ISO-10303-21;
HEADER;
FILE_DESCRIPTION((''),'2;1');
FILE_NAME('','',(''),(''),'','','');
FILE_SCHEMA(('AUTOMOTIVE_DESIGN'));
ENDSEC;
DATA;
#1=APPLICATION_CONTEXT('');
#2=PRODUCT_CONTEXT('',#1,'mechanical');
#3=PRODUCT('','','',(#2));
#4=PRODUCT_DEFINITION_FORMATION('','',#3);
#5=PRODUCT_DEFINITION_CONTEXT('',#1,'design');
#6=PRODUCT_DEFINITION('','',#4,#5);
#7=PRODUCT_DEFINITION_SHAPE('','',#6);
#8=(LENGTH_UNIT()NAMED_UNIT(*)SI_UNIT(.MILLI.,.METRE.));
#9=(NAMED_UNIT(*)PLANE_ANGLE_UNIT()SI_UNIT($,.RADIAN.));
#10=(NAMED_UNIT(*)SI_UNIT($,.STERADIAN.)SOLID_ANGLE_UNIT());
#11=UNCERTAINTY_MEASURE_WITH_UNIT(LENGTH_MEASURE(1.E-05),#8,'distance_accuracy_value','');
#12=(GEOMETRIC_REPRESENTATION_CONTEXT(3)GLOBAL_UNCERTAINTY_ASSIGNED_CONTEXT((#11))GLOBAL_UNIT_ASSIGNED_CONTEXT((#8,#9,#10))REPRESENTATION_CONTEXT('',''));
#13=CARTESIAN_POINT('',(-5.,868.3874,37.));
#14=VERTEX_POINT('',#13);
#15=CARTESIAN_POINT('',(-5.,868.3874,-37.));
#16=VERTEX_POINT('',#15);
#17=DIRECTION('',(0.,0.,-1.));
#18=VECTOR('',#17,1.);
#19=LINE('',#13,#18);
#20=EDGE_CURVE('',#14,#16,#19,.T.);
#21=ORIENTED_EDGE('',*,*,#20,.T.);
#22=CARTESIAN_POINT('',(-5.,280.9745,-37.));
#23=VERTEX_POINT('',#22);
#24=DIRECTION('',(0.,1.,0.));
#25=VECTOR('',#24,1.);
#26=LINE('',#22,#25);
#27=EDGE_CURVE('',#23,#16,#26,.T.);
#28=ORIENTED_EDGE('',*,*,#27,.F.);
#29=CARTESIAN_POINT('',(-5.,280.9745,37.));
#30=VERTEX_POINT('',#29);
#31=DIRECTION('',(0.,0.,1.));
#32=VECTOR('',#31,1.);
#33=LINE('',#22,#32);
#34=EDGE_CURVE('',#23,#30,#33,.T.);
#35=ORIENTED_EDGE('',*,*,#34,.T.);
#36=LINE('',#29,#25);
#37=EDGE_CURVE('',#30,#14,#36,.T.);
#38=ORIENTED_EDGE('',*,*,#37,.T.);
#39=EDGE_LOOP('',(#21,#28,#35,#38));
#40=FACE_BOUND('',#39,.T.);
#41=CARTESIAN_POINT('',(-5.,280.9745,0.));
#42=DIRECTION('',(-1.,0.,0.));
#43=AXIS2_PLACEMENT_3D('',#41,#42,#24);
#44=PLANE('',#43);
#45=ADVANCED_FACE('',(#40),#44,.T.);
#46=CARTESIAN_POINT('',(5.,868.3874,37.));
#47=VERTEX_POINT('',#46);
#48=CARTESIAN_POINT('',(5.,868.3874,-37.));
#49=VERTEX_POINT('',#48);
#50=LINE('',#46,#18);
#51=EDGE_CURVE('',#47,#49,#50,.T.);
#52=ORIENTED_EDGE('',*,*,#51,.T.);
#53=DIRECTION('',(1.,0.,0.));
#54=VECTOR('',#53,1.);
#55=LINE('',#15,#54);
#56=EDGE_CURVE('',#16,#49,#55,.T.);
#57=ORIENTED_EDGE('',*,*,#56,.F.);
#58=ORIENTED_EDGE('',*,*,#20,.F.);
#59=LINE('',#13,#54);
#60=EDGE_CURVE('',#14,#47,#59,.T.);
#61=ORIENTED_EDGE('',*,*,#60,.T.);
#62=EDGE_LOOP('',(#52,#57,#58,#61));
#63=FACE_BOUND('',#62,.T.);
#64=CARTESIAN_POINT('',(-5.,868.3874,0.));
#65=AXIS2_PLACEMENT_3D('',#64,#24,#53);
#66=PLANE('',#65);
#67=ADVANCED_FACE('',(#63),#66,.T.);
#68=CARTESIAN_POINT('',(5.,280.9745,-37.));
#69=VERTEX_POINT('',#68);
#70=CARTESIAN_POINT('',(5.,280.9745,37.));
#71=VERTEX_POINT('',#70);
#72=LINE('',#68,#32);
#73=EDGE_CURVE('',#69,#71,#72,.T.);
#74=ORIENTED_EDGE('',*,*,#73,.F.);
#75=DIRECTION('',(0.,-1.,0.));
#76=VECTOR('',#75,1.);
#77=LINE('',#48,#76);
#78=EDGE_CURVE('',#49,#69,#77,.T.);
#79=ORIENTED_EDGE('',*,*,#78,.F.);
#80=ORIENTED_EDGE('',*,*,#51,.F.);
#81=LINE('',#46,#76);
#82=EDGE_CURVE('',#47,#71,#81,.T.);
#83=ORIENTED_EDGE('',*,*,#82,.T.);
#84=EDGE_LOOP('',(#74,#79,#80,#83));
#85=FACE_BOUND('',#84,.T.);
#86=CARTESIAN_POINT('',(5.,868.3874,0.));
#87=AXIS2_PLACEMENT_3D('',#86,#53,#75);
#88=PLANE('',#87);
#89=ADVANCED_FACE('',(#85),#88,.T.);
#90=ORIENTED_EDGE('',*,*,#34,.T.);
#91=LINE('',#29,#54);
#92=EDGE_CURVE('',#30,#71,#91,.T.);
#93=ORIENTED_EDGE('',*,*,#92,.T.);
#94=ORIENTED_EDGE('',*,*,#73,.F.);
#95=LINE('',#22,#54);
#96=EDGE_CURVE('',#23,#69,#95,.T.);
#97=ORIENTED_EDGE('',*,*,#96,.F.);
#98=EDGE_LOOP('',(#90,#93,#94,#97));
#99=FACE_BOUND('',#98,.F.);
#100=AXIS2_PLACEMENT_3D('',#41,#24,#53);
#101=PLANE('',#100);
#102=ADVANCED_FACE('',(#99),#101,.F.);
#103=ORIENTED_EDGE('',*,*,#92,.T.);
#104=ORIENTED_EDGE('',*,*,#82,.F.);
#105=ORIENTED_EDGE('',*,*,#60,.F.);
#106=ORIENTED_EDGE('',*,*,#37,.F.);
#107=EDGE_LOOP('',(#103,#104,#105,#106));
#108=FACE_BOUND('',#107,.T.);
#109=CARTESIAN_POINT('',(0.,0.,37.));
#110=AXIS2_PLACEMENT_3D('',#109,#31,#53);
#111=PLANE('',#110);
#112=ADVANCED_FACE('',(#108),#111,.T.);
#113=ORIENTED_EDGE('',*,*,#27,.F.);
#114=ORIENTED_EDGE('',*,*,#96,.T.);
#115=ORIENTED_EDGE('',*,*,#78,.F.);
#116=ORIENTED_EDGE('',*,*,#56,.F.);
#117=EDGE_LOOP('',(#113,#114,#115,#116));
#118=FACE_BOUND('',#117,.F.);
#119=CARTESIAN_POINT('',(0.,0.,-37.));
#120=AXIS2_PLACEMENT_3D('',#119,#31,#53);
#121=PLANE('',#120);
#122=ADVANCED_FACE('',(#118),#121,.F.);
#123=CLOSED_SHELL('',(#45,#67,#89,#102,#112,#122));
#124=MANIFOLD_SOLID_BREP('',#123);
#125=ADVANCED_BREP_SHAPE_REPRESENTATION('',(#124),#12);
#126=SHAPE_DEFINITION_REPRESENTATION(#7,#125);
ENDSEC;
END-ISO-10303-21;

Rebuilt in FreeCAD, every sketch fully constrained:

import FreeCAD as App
import Part
import Sketcher
from FreeCAD import Vector
Q = App.Units.Quantity


def add_polygon(sketch, points):
    """Adds a closed chain of lines whose ends are joined by coincident constraints."""
    first, n = sketch.GeometryCount, len(points)
    for a, b in zip(points, points[1:] + points[:1]):
        sketch.addGeometry(Part.LineSegment(App.Vector(*a, 0), App.Vector(*b, 0)), False)
    for i in range(n):
        sketch.addConstraint(Sketcher.Constraint("Coincident", first + i, 2, first + (i + 1) % n, 1))

doc = App.newDocument("Part")
params = doc.addObject("Spreadsheet::Sheet", "Params")
for row, (alias, value) in enumerate([
    ("pad1_length", "74 mm"),
], start=1):
    params.set(f"A{row}", alias)
    params.set(f"B{row}", "=" + value)
    params.setAlias(f"B{row}", alias)

body = doc.addObject("PartDesign::Body", "Body")

# Sketch on XY plane
sketch1 = body.newObject("Sketcher::SketchObject", "Sketch")
sketch1.AttachmentSupport = (doc.getObject("XY_Plane"), [""])
sketch1.MapMode = "FlatFace"
add_polygon(sketch1, [(-5, 868), (-5, 281), (5, 281), (5, 868)])  # lines 0-3
sketch1.addConstraint([
    Sketcher.Constraint("Vertical", 0),
    Sketcher.Constraint("Horizontal", 1),
    Sketcher.Constraint("Vertical", 2),
    Sketcher.Constraint("Horizontal", 3),
    Sketcher.Constraint("DistanceX", 0, 2, -1, 1, Q("5 mm")),
    Sketcher.Constraint("DistanceX", -1, 1, 1, 2, Q("5 mm")),
    Sketcher.Constraint("DistanceY", 0, 2, 0, 1, Q("587.413 mm")),
    Sketcher.Constraint("DistanceY", -1, 1, 0, 2, Q("280.9745 mm")),
])
pad1 = body.newObject("PartDesign::Pad", "Pad")
pad1.Profile = sketch1
pad1.setExpression("Length", "Params.pad1_length")
pad1.Midplane = True

doc.recompute()
